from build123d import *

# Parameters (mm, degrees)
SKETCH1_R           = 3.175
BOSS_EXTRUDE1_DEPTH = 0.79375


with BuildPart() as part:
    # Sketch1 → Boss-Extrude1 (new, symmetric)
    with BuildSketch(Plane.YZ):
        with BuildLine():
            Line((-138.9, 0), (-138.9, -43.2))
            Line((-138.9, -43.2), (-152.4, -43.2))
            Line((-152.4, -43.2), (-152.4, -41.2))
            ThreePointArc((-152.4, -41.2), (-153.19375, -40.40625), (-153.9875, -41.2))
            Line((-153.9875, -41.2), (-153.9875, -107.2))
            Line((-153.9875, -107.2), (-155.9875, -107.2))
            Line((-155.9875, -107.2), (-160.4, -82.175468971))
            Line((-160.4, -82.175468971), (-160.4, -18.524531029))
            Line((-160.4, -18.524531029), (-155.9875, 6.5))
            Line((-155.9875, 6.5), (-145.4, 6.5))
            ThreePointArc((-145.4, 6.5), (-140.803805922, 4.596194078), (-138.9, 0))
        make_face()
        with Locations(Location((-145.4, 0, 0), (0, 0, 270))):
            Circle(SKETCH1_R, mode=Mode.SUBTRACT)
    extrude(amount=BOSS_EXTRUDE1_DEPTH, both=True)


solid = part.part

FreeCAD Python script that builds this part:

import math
import FreeCAD as App
import Part
import Sketcher
Q = App.Units.Quantity

doc = App.newDocument("Part")
body = doc.addObject("PartDesign::Body", "Body")

# Sketch on YZ plane
sketch1 = doc.addObject("Sketcher::SketchObject", "Sketch")
body.addObject(sketch1)
sketch1.AttachmentSupport = (doc.YZ_Plane, [""])
sketch1.MapMode = "FlatFace"
sketch1.addGeometry([
    Part.LineSegment(App.Vector(-138.9, -43.2, 0), App.Vector(-138.9, 0, 0)),  # 0
    Part.ArcOfCircle(Part.Circle(App.Vector(-145.4, 0, 0), App.Vector(0, 0, 1), 6.5), math.radians(0), math.radians(90)),  # 1
    Part.LineSegment(App.Vector(-145.4, 6.5, 0), App.Vector(-156, 6.5, 0)),  # 2
    Part.LineSegment(App.Vector(-156, 6.5, 0), App.Vector(-160.4, -18.5, 0)),  # 3
    Part.LineSegment(App.Vector(-160.4, -18.5, 0), App.Vector(-160.4, -82.2, 0)),  # 4
    Part.LineSegment(App.Vector(-160.4, -82.2, 0), App.Vector(-156, -107.2, 0)),  # 5
    Part.LineSegment(App.Vector(-156, -107.2, 0), App.Vector(-154, -107.2, 0)),  # 6
    Part.LineSegment(App.Vector(-154, -107.2, 0), App.Vector(-154, -41.2, 0)),  # 7
    Part.ArcOfCircle(Part.Circle(App.Vector(-153.2, -41.2, 0), App.Vector(0, 0, 1), 0.8), math.radians(0), math.radians(180)),  # 8
    Part.LineSegment(App.Vector(-152.4, -41.2, 0), App.Vector(-152.4, -43.2, 0)),  # 9
    Part.LineSegment(App.Vector(-152.4, -43.2, 0), App.Vector(-138.9, -43.2, 0)),  # 10
    Part.Circle(App.Vector(-145.4, 0, 0), App.Vector(0, 0, 1), 3.2),  # 11
], False)
sketch1.addConstraint([
    Sketcher.Constraint("Tangent", 0, 2, 1, 1),
    Sketcher.Constraint("Tangent", 1, 2, 2, 1),
    Sketcher.Constraint("Coincident", 2, 2, 3, 1),
    Sketcher.Constraint("Coincident", 3, 2, 4, 1),
    Sketcher.Constraint("Coincident", 4, 2, 5, 1),
    Sketcher.Constraint("Coincident", 5, 2, 6, 1),
    Sketcher.Constraint("Coincident", 6, 2, 7, 1),
    Sketcher.Constraint("Tangent", 7, 2, 8, 2),
    Sketcher.Constraint("Tangent", 8, 1, 9, 1),
    Sketcher.Constraint("Coincident", 9, 2, 10, 1),
    Sketcher.Constraint("Coincident", 10, 2, 0, 1),
    Sketcher.Constraint("Vertical", 0),
    Sketcher.Constraint("Horizontal", 2),
    Sketcher.Constraint("Vertical", 4),
    Sketcher.Constraint("Horizontal", 6),
    Sketcher.Constraint("Vertical", 7),
    Sketcher.Constraint("Vertical", 9),
    Sketcher.Constraint("Horizontal", 10),
    Sketcher.Constraint("Coincident", 11, 3, 1, 3),
    Sketcher.Constraint("PointOnObject", 1, 3, -1),
    Sketcher.Constraint("Vertical", 2, 2, 5, 2),
    Sketcher.Constraint("Equal", 6, 9),
    Sketcher.Constraint("Equal", 3, 5),
    Sketcher.Constraint("Radius", 1, 6.5),
    Sketcher.Constraint("Diameter", 11, 6.35),
    Sketcher.Constraint("DistanceX", 6, 1, 6, 2, 2.0),
    Sketcher.Constraint("DistanceY", 7, 1, 7, 2, 66.0),
    Sketcher.Constraint("Angle", 3, Q("-100 deg")),
    Sketcher.Constraint("DistanceX", 10, 1, 10, 2, 13.5),
    Sketcher.Constraint("DistanceY", 0, 1, 0, 2, 43.2),
    Sketcher.Constraint("DistanceX", 3, 2, 11, 3, 15.0),
    Sketcher.Constraint("DistanceX", 1, 3, -1, 1, 145.4),
    Sketcher.Constraint("Radius", 8, 0.79375),
])
pad1 = doc.addObject("PartDesign::Pad", "Pad")
body.addObject(pad1)
pad1.Profile = sketch1
pad1.Length = 1.5875
pad1.Midplane = True

doc.recompute()
